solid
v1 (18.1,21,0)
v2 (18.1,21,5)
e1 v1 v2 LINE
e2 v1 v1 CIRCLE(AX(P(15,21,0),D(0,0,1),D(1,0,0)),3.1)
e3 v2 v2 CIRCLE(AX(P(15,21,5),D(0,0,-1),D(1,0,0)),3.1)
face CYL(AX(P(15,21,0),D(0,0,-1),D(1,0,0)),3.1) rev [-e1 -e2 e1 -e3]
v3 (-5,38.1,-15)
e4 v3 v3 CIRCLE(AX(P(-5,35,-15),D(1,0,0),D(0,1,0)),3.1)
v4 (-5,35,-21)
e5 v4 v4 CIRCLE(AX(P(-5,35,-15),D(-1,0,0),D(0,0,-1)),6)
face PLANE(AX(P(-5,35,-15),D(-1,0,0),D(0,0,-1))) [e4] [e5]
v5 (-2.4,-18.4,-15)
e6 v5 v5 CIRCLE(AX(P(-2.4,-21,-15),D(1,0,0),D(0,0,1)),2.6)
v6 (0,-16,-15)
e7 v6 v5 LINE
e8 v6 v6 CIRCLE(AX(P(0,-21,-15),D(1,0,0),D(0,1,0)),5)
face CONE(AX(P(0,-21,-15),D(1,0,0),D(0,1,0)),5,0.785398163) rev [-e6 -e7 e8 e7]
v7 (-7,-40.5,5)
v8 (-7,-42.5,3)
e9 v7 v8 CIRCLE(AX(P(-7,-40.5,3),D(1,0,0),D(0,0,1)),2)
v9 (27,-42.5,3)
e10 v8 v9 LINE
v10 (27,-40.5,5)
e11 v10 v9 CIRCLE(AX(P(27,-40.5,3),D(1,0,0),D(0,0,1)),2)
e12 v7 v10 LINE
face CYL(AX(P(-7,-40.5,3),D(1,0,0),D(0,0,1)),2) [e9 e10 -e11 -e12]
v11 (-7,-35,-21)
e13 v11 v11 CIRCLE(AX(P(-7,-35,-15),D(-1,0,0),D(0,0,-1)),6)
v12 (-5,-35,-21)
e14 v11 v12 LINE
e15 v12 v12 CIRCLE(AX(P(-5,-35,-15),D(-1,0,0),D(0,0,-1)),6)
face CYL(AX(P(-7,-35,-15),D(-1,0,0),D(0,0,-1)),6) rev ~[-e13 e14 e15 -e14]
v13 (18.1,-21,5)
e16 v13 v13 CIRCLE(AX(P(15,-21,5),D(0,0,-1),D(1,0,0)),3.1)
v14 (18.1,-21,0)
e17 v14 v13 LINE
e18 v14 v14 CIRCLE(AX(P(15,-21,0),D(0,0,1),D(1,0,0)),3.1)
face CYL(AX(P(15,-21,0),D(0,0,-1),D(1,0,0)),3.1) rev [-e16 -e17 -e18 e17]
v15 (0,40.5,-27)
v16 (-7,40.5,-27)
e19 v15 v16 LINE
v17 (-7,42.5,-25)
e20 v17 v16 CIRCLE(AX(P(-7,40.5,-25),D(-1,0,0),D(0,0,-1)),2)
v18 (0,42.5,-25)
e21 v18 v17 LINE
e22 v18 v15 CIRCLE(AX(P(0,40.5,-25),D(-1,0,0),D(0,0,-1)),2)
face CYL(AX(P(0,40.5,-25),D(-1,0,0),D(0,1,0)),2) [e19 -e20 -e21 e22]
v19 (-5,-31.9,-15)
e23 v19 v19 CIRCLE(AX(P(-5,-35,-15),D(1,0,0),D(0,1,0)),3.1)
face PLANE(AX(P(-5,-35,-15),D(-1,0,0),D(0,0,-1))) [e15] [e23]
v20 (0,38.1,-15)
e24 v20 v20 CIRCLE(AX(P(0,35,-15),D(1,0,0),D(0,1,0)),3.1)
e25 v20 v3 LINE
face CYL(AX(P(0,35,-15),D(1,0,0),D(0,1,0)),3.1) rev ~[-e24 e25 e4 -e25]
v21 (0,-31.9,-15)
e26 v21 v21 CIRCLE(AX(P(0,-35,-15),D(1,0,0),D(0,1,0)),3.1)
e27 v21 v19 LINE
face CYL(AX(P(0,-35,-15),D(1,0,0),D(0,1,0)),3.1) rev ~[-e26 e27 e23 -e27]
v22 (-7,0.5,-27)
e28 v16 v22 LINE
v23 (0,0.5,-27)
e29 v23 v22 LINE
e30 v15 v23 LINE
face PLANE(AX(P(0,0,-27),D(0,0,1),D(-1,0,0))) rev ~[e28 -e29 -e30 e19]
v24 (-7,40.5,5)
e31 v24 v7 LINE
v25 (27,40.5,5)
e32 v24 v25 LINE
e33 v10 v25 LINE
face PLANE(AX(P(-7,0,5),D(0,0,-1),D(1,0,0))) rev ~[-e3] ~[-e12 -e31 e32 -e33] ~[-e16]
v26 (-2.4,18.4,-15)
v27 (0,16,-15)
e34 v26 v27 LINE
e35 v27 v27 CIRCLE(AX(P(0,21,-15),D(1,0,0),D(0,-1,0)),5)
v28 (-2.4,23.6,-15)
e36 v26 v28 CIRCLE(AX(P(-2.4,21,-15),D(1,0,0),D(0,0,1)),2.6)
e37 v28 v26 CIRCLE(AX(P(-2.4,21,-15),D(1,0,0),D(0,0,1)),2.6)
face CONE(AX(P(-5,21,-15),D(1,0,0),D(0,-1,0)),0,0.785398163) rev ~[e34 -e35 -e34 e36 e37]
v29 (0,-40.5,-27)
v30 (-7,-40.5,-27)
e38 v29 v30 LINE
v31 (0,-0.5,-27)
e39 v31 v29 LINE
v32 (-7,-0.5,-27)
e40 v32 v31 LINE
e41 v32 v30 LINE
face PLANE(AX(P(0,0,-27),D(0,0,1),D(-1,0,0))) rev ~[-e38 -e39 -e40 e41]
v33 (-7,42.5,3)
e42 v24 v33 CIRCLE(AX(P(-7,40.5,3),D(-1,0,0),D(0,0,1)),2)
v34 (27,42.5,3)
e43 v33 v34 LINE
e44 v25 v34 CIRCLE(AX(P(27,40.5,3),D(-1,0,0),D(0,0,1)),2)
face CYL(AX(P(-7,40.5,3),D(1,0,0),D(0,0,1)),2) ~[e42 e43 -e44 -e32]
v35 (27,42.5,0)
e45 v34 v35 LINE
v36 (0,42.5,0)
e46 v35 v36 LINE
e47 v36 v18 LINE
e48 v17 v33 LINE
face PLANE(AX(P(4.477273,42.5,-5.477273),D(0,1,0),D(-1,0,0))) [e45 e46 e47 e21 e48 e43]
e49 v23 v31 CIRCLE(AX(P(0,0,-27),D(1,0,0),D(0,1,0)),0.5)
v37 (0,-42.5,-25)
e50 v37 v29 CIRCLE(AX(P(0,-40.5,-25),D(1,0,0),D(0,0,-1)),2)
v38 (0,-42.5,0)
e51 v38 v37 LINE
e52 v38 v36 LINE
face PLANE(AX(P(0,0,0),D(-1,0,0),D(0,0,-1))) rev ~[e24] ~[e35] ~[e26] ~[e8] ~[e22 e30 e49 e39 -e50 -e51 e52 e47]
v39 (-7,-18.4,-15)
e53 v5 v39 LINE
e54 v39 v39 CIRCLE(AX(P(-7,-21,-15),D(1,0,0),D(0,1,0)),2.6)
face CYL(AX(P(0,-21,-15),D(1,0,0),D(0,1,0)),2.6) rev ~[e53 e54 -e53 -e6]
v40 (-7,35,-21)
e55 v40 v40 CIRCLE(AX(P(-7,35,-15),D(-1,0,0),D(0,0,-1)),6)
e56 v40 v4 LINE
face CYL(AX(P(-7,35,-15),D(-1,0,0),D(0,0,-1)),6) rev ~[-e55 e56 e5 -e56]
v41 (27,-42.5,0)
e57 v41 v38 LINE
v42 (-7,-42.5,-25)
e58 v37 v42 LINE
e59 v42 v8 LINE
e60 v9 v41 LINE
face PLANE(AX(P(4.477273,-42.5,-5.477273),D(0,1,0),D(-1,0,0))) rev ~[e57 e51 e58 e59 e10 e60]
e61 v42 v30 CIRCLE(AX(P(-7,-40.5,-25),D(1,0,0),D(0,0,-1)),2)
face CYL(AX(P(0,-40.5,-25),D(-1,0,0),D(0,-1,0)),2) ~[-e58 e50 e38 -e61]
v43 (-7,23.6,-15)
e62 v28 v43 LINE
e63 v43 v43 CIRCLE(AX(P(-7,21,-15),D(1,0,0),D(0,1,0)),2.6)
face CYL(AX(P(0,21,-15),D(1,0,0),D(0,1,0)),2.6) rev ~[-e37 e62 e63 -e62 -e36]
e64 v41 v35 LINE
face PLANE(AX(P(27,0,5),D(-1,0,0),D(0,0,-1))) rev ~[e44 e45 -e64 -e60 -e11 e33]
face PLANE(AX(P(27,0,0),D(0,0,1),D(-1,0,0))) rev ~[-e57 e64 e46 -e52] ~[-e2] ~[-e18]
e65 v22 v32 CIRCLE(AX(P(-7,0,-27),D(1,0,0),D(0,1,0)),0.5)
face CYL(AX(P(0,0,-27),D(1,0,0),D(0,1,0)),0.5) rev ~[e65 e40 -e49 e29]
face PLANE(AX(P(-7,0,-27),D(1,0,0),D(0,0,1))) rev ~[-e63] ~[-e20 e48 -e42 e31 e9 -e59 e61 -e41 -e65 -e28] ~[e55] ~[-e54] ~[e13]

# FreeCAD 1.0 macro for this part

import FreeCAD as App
import Part
import Sketcher
Q = App.Units.Quantity


def edges_at(feature, points):
    """Names of the edges that pass closest to the given points."""
    edges = feature.Shape.Edges
    near = lambda p: min(range(len(edges)), key=lambda i: edges[i].distToShape(Part.Vertex(*p))[0])
    return sorted({f"Edge{near(p) + 1}" for p in points})


def add_polygon(sketch, points):
    """Adds a closed chain of lines whose ends are joined by coincident constraints."""
    first, n = sketch.GeometryCount, len(points)
    for a, b in zip(points, points[1:] + points[:1]):
        sketch.addGeometry(Part.LineSegment(App.Vector(*a, 0), App.Vector(*b, 0)), False)
    for i in range(n):
        sketch.addConstraint(Sketcher.Constraint("Coincident", first + i, 2, first + (i + 1) % n, 1))

doc = App.newDocument("Part")
params = doc.addObject("Spreadsheet::Sheet", "Params")
for row, (alias, value) in enumerate([
    ("sketch1_width", "34 mm"),
    ("sketch1_width2", "7 mm"),
    ("sketch1_height", "32 mm"),
    ("pad1_length", "85 mm"),
    ("sketch2_diameter", "6.2 mm"),
    ("sketch3_diameter", "5.2 mm"),
    ("sketch3_diameter2", "6.2 mm"),
    ("sketch4_width", "5 mm"),
    ("groove_angle", "360 deg"),
    ("sketch5_width", "5 mm"),
    ("groove2_angle", "360 deg"),
    ("fillet_radius", "2 mm"),
    ("sketch6_diameter", "1 mm"),
    ("sketch7_diameter", "12 mm"),
    ("pocket4_length", "2 mm"),
], start=1):
    params.set(f"A{row}", alias)
    params.set(f"B{row}", "=" + value)
    params.setAlias(f"B{row}", alias)

body = doc.addObject("PartDesign::Body", "Body")

# Sketch on XZ plane
sketch1 = doc.addObject("Sketcher::SketchObject", "Sketch")
body.addObject(sketch1)
sketch1.AttachmentSupport = (doc.XZ_Plane, [""])
sketch1.MapMode = "FlatFace"
add_polygon(sketch1, [(27, 5), (-7, 5), (-7, -27), (0, -27), (0, 0), (27, 0)])  # lines 0-5
sketch1.addConstraint([
    Sketcher.Constraint("Horizontal", 0),
    Sketcher.Constraint("Vertical", 1),
    Sketcher.Constraint("Horizontal", 2),
    Sketcher.Constraint("Vertical", 3),
    Sketcher.Constraint("Horizontal", 4),
    Sketcher.Constraint("Vertical", 5),
    Sketcher.Constraint("Coincident", 3, 2, -1, 1),
    Sketcher.Constraint("Equal", 4, 3),
    Sketcher.Constraint("DistanceX", 0, 2, 0, 1, Q("34 mm")),
    Sketcher.Constraint("DistanceX", 2, 1, 2, 2, Q("7 mm")),
    Sketcher.Constraint("DistanceY", 1, 2, 1, 1, Q("32 mm")),
])
sketch1.setExpression("Constraints[14]", "Params.sketch1_width")
sketch1.setExpression("Constraints[15]", "Params.sketch1_width2")
sketch1.setExpression("Constraints[16]", "Params.sketch1_height")
pad1 = doc.addObject("PartDesign::Pad", "Pad")
body.addObject(pad1)
pad1.Profile = sketch1
pad1.setExpression("Length", "Params.pad1_length")
pad1.Midplane = True

# Sketch on XY plane
sketch2 = doc.addObject("Sketcher::SketchObject", "Sketch001")
body.addObject(sketch2)
sketch2.AttachmentSupport = (doc.XY_Plane, [""])
sketch2.MapMode = "FlatFace"
sketch2.addGeometry([
    Part.Circle(App.Vector(15, -21, 0), App.Vector(0, 0, 1), 3.1),
    Part.Circle(App.Vector(15, 21, 0), App.Vector(0, 0, 1), 3.1),
], False)
sketch2.addConstraint([
    Sketcher.Constraint("Equal", 0, 1),
    Sketcher.Constraint("Symmetric", 0, 3, 1, 3, -1),
    Sketcher.Constraint("Diameter", 0, Q("6.2 mm")),
    Sketcher.Constraint("DistanceX", -1, 1, 0, 3, Q("15 mm")),
    Sketcher.Constraint("DistanceY", 0, 3, -1, 1, Q("21 mm")),
])
sketch2.setExpression("Constraints[2]", "Params.sketch2_diameter")
pocket1 = doc.addObject("PartDesign::Pocket", "Pocket")
body.addObject(pocket1)
pocket1.Profile = sketch2
pocket1.Type = "ThroughAll"
pocket1.Midplane = True

# Sketch on YZ plane
sketch3 = doc.addObject("Sketcher::SketchObject", "Sketch002")
body.addObject(sketch3)
sketch3.AttachmentSupport = (doc.YZ_Plane, [""])
sketch3.MapMode = "FlatFace"
sketch3.addGeometry([
    Part.Circle(App.Vector(-21, -15, 0), App.Vector(0, 0, 1), 2.6),
    Part.Circle(App.Vector(21, -15, 0), App.Vector(0, 0, 1), 2.6),
    Part.Circle(App.Vector(-35, -15, 0), App.Vector(0, 0, 1), 3.1),
    Part.Circle(App.Vector(35, -15, 0), App.Vector(0, 0, 1), 3.1),
], False)
sketch3.addConstraint([
    Sketcher.Constraint("Equal", 0, 1),
    Sketcher.Constraint("Equal", 2, 3),
    Sketcher.Constraint("Symmetric", 0, 3, 1, 3, -2),
    Sketcher.Constraint("Symmetric", 2, 3, 3, 3, -2),
    Sketcher.Constraint("Horizontal", 1, 3, 2, 3),
    Sketcher.Constraint("Diameter", 0, Q("5.2 mm")),
    Sketcher.Constraint("Diameter", 2, Q("6.2 mm")),
    Sketcher.Constraint("DistanceX", 0, 3, -1, 1, Q("21 mm")),
    Sketcher.Constraint("DistanceY", 0, 3, -1, 1, Q("15 mm")),
    Sketcher.Constraint("DistanceX", 2, 3, -1, 1, Q("35 mm")),
])
sketch3.setExpression("Constraints[5]", "Params.sketch3_diameter")
sketch3.setExpression("Constraints[6]", "Params.sketch3_diameter2")
pocket2 = doc.addObject("PartDesign::Pocket", "Pocket001")
body.addObject(pocket2)
pocket2.Profile = sketch3
pocket2.Type = "ThroughAll"

# Sketch on XY plane
sketch4 = doc.addObject("Sketcher::SketchObject", "Sketch003")
body.addObject(sketch4)
sketch4.AttachmentSupport = (doc.XY_Plane, [""])
sketch4.MapMode = "FlatFace"
sketch4.AttachmentOffset = App.Placement(App.Vector(0, 0, -15), App.Rotation())
add_polygon(sketch4, [(0, 21), (-5, 21), (0, 16)])  # lines 0-2
sketch4.addGeometry(Part.LineSegment(App.Vector(-5, 21, 0), App.Vector(0, 21, 0)), True)  # axis
sketch4.addConstraint([
    Sketcher.Constraint("Horizontal", 0),
    Sketcher.Constraint("Vertical", 2),
    Sketcher.Constraint("Horizontal", 3),
    Sketcher.Constraint("Coincident", 3, 1, 0, 2),
    Sketcher.Constraint("PointOnObject", 1, 2, -2),
    Sketcher.Constraint("PointOnObject", 3, 2, -2),
    Sketcher.Constraint("Equal", 3, 2),
    Sketcher.Constraint("DistanceX", 0, 2, 0, 1, Q("5 mm")),
    Sketcher.Constraint("DistanceY", -1, 1, 0, 2, Q("21 mm")),
])
sketch4.setExpression("Constraints[10]", "Params.sketch4_width")
groove = doc.addObject("PartDesign::Groove", "Groove")
body.addObject(groove)
groove.Profile = sketch4
groove.ReferenceAxis = (sketch4, ["Axis0"])
groove.setExpression("Angle", "Params.groove_angle")

# Sketch on XY plane
sketch5 = doc.addObject("Sketcher::SketchObject", "Sketch004")
body.addObject(sketch5)
sketch5.AttachmentSupport = (doc.XY_Plane, [""])
sketch5.MapMode = "FlatFace"
sketch5.AttachmentOffset = App.Placement(App.Vector(0, 0, -15), App.Rotation())
add_polygon(sketch5, [(-5, -21), (0, -21), (0, -16)])  # lines 0-2
sketch5.addGeometry(Part.LineSegment(App.Vector(-5, -21, 0), App.Vector(0, -21, 0)), True)  # axis
sketch5.addConstraint([
    Sketcher.Constraint("Horizontal", 0),
    Sketcher.Constraint("Vertical", 1),
    Sketcher.Constraint("Horizontal", 3),
    Sketcher.Constraint("Coincident", 3, 1, 2, 2),
    Sketcher.Constraint("PointOnObject", 0, 2, -2),
    Sketcher.Constraint("PointOnObject", 3, 2, -2),
    Sketcher.Constraint("Equal", 3, 1),
    Sketcher.Constraint("DistanceX", 0, 1, 0, 2, Q("5 mm")),
    Sketcher.Constraint("DistanceY", 0, 2, -1, 1, Q("21 mm")),
])
sketch5.setExpression("Constraints[10]", "Params.sketch5_width")
groove2 = doc.addObject("PartDesign::Groove", "Groove001")
body.addObject(groove2)
groove2.Profile = sketch5
groove2.ReferenceAxis = (sketch5, ["Axis0"])
groove2.setExpression("Angle", "Params.groove2_angle")
doc.recompute()

fillet = doc.addObject("PartDesign::Fillet", "Fillet")
body.addObject(fillet)
fillet.Base = (groove2, edges_at(groove2, [
    (-3.5, -42.5, -27),
    (-3.5, 42.5, -27),
    (10, -42.5, 5),
    (10, 42.5, 5),
]))
fillet.setExpression("Radius", "Params.fillet_radius")

# Sketch on YZ plane
sketch6 = doc.addObject("Sketcher::SketchObject", "Sketch005")
body.addObject(sketch6)
sketch6.AttachmentSupport = (doc.YZ_Plane, [""])
sketch6.MapMode = "FlatFace"
sketch6.addGeometry(Part.Circle(App.Vector(0, -27, 0), App.Vector(0, 0, 1), 0.5), False)
sketch6.addConstraint([
    Sketcher.Constraint("PointOnObject", 0, 3, -2),
    Sketcher.Constraint("Diameter", 0, Q("1 mm")),
    Sketcher.Constraint("DistanceY", 0, 3, -1, 1, Q("27 mm")),
])
sketch6.setExpression("Constraints[1]", "Params.sketch6_diameter")
pocket3 = doc.addObject("PartDesign::Pocket", "Pocket002")
body.addObject(pocket3)
pocket3.Profile = sketch6
pocket3.Type = "ThroughAll"
pocket3.Midplane = True

# Sketch on YZ plane
sketch7 = doc.addObject("Sketcher::SketchObject", "Sketch006")
body.addObject(sketch7)
sketch7.AttachmentSupport = (doc.YZ_Plane, [""])
sketch7.MapMode = "FlatFace"
sketch7.AttachmentOffset = App.Placement(App.Vector(0, 0, -7), App.Rotation())
sketch7.addGeometry([
    Part.Circle(App.Vector(-35, -15, 0), App.Vector(0, 0, 1), 6),
    Part.Circle(App.Vector(35, -15, 0), App.Vector(0, 0, 1), 6),
], False)
sketch7.addConstraint([
    Sketcher.Constraint("Equal", 0, 1),
    Sketcher.Constraint("Symmetric", 0, 3, 1, 3, -2),
    Sketcher.Constraint("Diameter", 0, Q("12 mm")),
    Sketcher.Constraint("DistanceX", 0, 3, -1, 1, Q("35 mm")),
    Sketcher.Constraint("DistanceY", 0, 3, -1, 1, Q("15 mm")),
])
sketch7.setExpression("Constraints[2]", "Params.sketch7_diameter")
pocket4 = doc.addObject("PartDesign::Pocket", "Pocket003")
body.addObject(pocket4)
pocket4.Profile = sketch7
pocket4.setExpression("Length", "Params.pocket4_length")
pocket4.Reversed = True

doc.recompute()
